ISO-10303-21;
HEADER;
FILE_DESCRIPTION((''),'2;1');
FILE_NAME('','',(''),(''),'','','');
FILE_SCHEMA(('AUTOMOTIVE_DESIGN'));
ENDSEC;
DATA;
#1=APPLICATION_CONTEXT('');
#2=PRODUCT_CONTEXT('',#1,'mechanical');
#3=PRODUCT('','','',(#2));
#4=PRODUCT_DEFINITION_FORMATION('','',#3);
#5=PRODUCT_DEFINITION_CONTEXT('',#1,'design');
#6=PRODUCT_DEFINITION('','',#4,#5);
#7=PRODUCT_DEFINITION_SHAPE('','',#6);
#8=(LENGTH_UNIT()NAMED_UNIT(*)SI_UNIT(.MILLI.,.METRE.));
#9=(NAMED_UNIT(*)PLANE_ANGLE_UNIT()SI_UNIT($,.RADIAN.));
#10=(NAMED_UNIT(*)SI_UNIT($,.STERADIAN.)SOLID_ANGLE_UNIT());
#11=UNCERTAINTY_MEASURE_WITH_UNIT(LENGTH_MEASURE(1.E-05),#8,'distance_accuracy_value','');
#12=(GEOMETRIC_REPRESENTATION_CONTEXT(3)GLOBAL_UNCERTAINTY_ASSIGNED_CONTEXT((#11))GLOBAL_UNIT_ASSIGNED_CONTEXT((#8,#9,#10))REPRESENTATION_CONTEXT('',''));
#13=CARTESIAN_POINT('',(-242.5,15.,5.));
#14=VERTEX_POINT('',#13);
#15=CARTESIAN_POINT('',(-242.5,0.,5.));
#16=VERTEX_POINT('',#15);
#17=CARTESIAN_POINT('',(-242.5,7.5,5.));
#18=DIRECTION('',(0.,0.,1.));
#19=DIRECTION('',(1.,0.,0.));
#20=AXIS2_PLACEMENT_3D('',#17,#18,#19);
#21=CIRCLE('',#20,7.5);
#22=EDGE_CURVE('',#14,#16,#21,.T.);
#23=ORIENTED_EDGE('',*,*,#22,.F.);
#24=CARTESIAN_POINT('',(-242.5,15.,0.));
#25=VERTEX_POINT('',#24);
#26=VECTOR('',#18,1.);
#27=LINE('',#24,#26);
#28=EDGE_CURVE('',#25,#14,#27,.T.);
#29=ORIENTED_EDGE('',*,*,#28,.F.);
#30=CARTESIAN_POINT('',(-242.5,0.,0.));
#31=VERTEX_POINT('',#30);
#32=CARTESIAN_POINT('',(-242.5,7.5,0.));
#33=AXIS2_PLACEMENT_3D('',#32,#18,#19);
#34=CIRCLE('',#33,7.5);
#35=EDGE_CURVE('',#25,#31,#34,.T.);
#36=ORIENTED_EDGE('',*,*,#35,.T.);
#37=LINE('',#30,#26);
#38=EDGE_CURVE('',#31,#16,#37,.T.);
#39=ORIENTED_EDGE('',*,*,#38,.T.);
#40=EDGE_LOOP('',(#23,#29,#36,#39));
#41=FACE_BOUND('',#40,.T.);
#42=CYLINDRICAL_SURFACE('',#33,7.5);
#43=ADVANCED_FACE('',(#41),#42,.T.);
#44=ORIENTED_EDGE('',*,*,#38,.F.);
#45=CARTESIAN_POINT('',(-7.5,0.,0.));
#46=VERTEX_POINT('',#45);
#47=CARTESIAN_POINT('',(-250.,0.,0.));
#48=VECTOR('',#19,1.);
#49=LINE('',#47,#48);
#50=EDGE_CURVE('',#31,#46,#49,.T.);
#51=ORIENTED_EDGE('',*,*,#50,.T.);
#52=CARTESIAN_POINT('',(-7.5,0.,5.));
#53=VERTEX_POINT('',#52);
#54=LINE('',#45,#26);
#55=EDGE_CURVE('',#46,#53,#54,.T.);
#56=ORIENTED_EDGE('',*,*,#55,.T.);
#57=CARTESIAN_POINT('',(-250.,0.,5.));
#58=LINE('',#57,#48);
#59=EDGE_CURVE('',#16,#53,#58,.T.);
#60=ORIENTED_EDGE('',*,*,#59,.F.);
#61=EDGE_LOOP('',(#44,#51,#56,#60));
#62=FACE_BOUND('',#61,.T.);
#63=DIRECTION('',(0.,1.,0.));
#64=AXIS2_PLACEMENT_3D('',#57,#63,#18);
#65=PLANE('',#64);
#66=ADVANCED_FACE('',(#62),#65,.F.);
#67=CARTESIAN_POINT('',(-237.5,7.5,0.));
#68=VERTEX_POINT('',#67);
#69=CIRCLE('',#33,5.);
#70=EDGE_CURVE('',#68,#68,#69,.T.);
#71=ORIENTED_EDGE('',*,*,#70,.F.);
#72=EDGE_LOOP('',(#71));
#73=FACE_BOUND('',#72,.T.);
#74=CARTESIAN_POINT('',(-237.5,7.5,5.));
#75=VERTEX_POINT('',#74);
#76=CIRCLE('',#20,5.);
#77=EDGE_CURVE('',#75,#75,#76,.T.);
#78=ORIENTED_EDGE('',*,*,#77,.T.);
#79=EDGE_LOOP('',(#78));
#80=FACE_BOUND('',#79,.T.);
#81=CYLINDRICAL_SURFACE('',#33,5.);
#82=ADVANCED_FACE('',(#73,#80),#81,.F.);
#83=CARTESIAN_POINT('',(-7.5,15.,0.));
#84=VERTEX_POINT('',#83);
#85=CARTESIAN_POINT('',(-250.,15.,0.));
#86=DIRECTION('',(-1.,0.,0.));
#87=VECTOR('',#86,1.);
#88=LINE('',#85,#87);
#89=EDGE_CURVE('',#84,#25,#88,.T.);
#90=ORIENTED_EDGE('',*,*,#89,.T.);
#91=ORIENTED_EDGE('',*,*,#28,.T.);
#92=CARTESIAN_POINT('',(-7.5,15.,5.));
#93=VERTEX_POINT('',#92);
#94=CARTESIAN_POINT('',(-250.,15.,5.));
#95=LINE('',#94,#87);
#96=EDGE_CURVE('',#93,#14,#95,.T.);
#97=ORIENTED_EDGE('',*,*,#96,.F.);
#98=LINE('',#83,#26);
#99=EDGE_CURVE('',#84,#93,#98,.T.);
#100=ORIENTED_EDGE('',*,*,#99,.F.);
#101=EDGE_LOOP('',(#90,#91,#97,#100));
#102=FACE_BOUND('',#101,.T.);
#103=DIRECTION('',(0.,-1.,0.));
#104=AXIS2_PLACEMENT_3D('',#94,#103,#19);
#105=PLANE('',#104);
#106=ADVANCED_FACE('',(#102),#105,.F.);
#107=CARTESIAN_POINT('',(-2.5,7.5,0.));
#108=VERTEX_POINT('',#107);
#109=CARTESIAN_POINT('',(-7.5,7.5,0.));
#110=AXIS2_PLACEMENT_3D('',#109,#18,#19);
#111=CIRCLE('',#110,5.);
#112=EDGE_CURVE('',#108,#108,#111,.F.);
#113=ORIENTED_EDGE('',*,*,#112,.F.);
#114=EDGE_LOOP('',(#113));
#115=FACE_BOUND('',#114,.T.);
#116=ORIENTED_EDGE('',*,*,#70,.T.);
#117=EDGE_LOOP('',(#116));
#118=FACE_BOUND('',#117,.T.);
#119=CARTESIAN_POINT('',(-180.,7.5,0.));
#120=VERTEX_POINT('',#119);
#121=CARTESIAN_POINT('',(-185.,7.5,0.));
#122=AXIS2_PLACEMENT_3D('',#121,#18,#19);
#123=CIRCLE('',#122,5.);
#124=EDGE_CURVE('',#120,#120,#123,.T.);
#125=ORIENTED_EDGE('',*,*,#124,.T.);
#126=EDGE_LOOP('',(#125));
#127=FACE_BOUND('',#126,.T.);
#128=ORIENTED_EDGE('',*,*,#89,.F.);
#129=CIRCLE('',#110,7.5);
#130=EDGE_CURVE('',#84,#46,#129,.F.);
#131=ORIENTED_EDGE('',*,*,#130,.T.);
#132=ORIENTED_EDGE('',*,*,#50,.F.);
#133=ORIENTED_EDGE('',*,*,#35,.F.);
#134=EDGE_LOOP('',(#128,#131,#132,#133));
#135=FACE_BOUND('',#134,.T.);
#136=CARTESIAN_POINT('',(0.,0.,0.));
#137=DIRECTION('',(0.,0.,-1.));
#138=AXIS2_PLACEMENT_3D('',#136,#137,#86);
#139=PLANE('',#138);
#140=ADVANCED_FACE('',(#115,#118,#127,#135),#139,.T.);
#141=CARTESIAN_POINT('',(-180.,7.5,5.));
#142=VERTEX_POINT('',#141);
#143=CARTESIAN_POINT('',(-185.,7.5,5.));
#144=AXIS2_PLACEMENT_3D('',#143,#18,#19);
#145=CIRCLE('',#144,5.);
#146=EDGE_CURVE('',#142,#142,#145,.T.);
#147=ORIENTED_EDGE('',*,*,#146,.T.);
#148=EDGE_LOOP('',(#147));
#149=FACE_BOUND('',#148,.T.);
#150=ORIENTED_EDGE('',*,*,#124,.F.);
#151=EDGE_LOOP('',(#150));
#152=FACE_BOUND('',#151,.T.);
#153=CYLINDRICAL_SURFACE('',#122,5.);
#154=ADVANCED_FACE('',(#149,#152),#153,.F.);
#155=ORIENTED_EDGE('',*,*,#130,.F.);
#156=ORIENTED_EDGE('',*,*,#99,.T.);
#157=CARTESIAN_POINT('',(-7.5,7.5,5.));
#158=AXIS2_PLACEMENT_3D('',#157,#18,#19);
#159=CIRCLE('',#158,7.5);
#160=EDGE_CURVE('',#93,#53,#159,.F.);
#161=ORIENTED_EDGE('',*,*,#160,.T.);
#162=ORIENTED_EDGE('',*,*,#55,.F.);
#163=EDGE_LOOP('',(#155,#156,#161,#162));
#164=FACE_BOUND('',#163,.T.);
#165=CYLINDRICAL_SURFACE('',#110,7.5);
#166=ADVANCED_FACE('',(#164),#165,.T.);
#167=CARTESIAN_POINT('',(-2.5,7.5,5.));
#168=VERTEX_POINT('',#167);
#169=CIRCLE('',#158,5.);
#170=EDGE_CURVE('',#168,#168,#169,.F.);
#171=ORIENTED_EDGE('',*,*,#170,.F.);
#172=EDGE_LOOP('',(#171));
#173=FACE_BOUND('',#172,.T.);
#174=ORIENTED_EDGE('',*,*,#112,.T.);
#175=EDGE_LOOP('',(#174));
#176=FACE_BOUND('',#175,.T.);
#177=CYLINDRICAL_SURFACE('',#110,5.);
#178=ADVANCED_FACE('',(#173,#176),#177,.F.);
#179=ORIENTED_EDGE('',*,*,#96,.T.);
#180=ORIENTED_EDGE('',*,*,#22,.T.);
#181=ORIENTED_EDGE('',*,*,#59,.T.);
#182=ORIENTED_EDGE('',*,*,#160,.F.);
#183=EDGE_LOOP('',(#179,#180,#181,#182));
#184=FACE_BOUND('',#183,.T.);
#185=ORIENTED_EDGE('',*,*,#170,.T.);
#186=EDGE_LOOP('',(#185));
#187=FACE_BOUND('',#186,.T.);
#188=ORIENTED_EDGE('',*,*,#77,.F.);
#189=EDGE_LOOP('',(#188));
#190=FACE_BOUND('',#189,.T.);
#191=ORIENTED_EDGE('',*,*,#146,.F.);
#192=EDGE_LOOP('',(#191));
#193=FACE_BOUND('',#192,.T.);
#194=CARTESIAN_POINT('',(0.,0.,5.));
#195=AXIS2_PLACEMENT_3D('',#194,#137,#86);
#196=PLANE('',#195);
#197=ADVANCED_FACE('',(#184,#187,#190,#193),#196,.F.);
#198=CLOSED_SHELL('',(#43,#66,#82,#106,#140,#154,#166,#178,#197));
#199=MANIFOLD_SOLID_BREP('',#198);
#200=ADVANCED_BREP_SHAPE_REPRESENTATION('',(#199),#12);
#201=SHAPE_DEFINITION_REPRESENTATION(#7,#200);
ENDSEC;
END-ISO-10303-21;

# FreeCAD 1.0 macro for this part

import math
import FreeCAD as App
import Part
import Sketcher


def add_polygon(sketch, points):
    """Adds a closed chain of lines whose ends are joined by coincident constraints."""
    first, n = sketch.GeometryCount, len(points)
    for a, b in zip(points, points[1:] + points[:1]):
        sketch.addGeometry(Part.LineSegment(App.Vector(*a, 0), App.Vector(*b, 0)), False)
    for i in range(n):
        sketch.addConstraint(Sketcher.Constraint("Coincident", first + i, 2, first + (i + 1) % n, 1))

doc = App.newDocument("Part")
body = doc.addObject("PartDesign::Body", "Body")

# Sketch on XY plane
sketch1 = doc.addObject("Sketcher::SketchObject", "Sketch")
body.addObject(sketch1)
sketch1.AttachmentSupport = (doc.XY_Plane, [""])
sketch1.MapMode = "FlatFace"
add_polygon(sketch1, [(-250, 15), (-250, 0), (0, 0), (0, 15)])  # lines 0-3
sketch1.addConstraint([
    Sketcher.Constraint("Vertical", 0),
    Sketcher.Constraint("Horizontal", 1),
    Sketcher.Constraint("Vertical", 2),
    Sketcher.Constraint("Horizontal", 3),
    Sketcher.Constraint("Coincident", 1, 2, -1, 1),
    Sketcher.Constraint("DistanceX", 1, 1, 1, 2, 250.0),
    Sketcher.Constraint("DistanceY", 0, 2, 0, 1, 15.0),
])
pad1 = doc.addObject("PartDesign::Pad", "Pad")
body.addObject(pad1)
pad1.Profile = sketch1
pad1.Length = 5

# Sketch on XY plane
sketch2 = doc.addObject("Sketcher::SketchObject", "Sketch001")
body.addObject(sketch2)
sketch2.AttachmentSupport = (doc.XY_Plane, [""])
sketch2.MapMode = "FlatFace"
sketch2.AttachmentOffset = App.Placement(App.Vector(0, 0, 5), App.Rotation())
sketch2.addGeometry([
    Part.LineSegment(App.Vector(-242.5, 15, 0), App.Vector(-250, 15, 0)),  # 0
    Part.LineSegment(App.Vector(-250, 15, 0), App.Vector(-250, 7.5, 0)),  # 1
    Part.ArcOfCircle(Part.Circle(App.Vector(-242.5, 7.5, 0), App.Vector(0, 0, 1), 7.5), math.radians(90), math.radians(180)),  # 2
    Part.Circle(App.Vector(-242.5, 7.5, 0), App.Vector(0, 0, 1), 5),  # 3
    Part.ArcOfCircle(Part.Circle(App.Vector(-242.5, 7.5, 0), App.Vector(0, 0, 1), 7.5), math.radians(180), math.radians(270)),  # 4
    Part.LineSegment(App.Vector(-250, 7.5, 0), App.Vector(-250, 0, 0)),  # 5
    Part.LineSegment(App.Vector(-250, 0, 0), App.Vector(-242.5, 0, 0)),  # 6
    Part.ArcOfCircle(Part.Circle(App.Vector(-7.5, 7.5, 0), App.Vector(0, 0, 1), 7.5), math.radians(-90.000001), math.radians(0)),  # 7
    Part.LineSegment(App.Vector(-7.5, 0, 0), App.Vector(0, 0, 0)),  # 8
    Part.LineSegment(App.Vector(0, 0, 0), App.Vector(0, 7.5, 0)),  # 9
    Part.LineSegment(App.Vector(0, 15, 0), App.Vector(-7.5, 15, 0)),  # 10
    Part.ArcOfCircle(Part.Circle(App.Vector(-7.5, 7.5, 0), App.Vector(0, 0, 1), 7.5), math.radians(0), math.radians(90)),  # 11
    Part.LineSegment(App.Vector(0, 7.5, 0), App.Vector(0, 15, 0)),  # 12
    Part.Circle(App.Vector(-7.5, 7.5, 0), App.Vector(0, 0, 1), 5),  # 13
], False)
sketch2.addConstraint([
    Sketcher.Constraint("Coincident", 0, 2, 1, 1),
    Sketcher.Constraint("Tangent", 1, 2, 2, 2),
    Sketcher.Constraint("Tangent", 2, 1, 0, 1),
    Sketcher.Constraint("Tangent", 4, 1, 5, 1),
    Sketcher.Constraint("Coincident", 5, 2, 6, 1),
    Sketcher.Constraint("Tangent", 6, 2, 4, 2),
    Sketcher.Constraint("Tangent", 7, 1, 8, 1),
    Sketcher.Constraint("Coincident", 8, 2, 9, 1),
    Sketcher.Constraint("Tangent", 9, 2, 7, 2),
    Sketcher.Constraint("Tangent", 10, 2, 11, 2),
    Sketcher.Constraint("Tangent", 11, 1, 12, 1),
    Sketcher.Constraint("Coincident", 12, 2, 10, 1),
    Sketcher.Constraint("Horizontal", 0),
    Sketcher.Constraint("Vertical", 1),
    Sketcher.Constraint("Vertical", 5),
    Sketcher.Constraint("Horizontal", 6),
    Sketcher.Constraint("Horizontal", 8),
    Sketcher.Constraint("Vertical", 9),
    Sketcher.Constraint("Horizontal", 10),
    Sketcher.Constraint("Vertical", 12),
    Sketcher.Constraint("Coincident", 8, 2, -1, 1),
    Sketcher.Constraint("Coincident", 3, 3, 2, 3),
    Sketcher.Constraint("Coincident", 4, 3, 2, 3),
    Sketcher.Constraint("Coincident", 11, 3, 7, 3),
    Sketcher.Constraint("Coincident", 13, 3, 7, 3),
    Sketcher.Constraint("Equal", 2, 4),
    Sketcher.Constraint("Equal", 4, 7),
    Sketcher.Constraint("Equal", 7, 11),
    Sketcher.Constraint("Equal", 3, 13),
    Sketcher.Constraint("PointOnObject", 5, 2, -1),
    Sketcher.Constraint("Diameter", 3, 10.0),
    Sketcher.Constraint("Radius", 2, 7.5),
    Sketcher.Constraint("DistanceX", 0, 2, -1, 1, 250.0),
])
pocket1 = doc.addObject("PartDesign::Pocket", "Pocket")
body.addObject(pocket1)
pocket1.Profile = sketch2
pocket1.Length = 5

# Sketch on XY plane
sketch3 = doc.addObject("Sketcher::SketchObject", "Sketch002")
body.addObject(sketch3)
sketch3.AttachmentSupport = (doc.XY_Plane, [""])
sketch3.MapMode = "FlatFace"
sketch3.AttachmentOffset = App.Placement(App.Vector(0, 0, 5), App.Rotation())
sketch3.addGeometry(Part.Circle(App.Vector(-185, 7.5, 0), App.Vector(0, 0, 1), 5), False)
sketch3.addConstraint([
    Sketcher.Constraint("Diameter", 0, 10.0),
    Sketcher.Constraint("DistanceX", 0, 3, -1, 1, 185.0),
    Sketcher.Constraint("DistanceY", -1, 1, 0, 3, 7.5),
])
pocket2 = doc.addObject("PartDesign::Pocket", "Pocket001")
body.addObject(pocket2)
pocket2.Profile = sketch3
pocket2.Type = "ThroughAll"

doc.recompute()
